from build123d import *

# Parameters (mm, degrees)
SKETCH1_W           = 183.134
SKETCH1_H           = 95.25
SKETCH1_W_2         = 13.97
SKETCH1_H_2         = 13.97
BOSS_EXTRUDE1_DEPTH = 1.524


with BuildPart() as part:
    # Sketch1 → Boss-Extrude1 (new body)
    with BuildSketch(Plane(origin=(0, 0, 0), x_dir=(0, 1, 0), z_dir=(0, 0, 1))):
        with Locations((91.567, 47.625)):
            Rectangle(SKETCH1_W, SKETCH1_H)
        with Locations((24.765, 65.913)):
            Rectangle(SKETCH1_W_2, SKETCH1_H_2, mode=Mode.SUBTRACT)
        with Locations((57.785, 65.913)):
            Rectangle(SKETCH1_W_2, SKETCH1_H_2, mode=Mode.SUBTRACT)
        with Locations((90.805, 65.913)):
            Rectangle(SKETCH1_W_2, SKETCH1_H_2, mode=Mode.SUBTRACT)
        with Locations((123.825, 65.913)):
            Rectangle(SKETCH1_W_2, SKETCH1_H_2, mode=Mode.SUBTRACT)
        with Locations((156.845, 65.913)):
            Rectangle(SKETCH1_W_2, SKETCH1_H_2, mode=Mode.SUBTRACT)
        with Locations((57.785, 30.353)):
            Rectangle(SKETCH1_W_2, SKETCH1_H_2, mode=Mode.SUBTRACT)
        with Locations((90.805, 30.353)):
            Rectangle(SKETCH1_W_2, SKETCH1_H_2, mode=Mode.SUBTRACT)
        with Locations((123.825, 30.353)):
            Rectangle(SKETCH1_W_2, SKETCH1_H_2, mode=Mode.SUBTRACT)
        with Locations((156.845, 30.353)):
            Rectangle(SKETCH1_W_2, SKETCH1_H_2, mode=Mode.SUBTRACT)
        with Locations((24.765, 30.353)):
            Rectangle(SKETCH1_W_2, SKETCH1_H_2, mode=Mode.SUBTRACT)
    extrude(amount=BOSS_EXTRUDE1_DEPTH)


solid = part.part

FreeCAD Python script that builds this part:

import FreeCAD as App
import Part
import Sketcher

V = App.Vector
Q = App.Units.Quantity


def add_polygon(sketch, points):
    """Adds a closed chain of lines whose ends are joined by coincident constraints."""
    first, n = sketch.GeometryCount, len(points)
    for a, b in zip(points, points[1:] + points[:1]):
        sketch.addGeometry(Part.LineSegment(App.Vector(*a, 0), App.Vector(*b, 0)), False)
    for i in range(n):
        sketch.addConstraint(Sketcher.Constraint("Coincident", first + i, 2, first + (i + 1) % n, 1))

doc = App.newDocument("Part")
params = doc.addObject("Spreadsheet::Sheet", "Params")
for row, (alias, value) in enumerate([
    ("sketch1_width", "3.75 in"),
    ("sketch1_width2", "0.55 in"),
    ("sketch1_height", "7.21 in"),
    ("pad1_length", "0.06 in"),
], start=1):
    params.set(f"A{row}", alias)
    params.set(f"B{row}", "=" + value)
    params.setAlias(f"B{row}", alias)

body = doc.addObject("PartDesign::Body", "Body")

sketch1 = body.newObject("Sketcher::SketchObject", "Sketch")
sketch1.AttachmentSupport = (doc.getObject("XY_Plane"), [""])
sketch1.MapMode = "FlatFace"
add_polygon(sketch1, [(-95, 0), (0, 0), (0, 183), (-95, 183)])
add_polygon(sketch1, [(-23, 32), (-23, 18), (-37, 18), (-37, 32)])
add_polygon(sketch1, [(-23, 65), (-23, 51), (-37, 51), (-37, 65)])
add_polygon(sketch1, [(-23, 98), (-23, 84), (-37, 84), (-37, 98)])
add_polygon(sketch1, [(-23, 131), (-23, 117), (-37, 117), (-37, 131)])
add_polygon(sketch1, [(-23, 164), (-23, 150), (-37, 150), (-37, 164)])
add_polygon(sketch1, [(-59, 32), (-59, 18), (-73, 18), (-73, 32)])
add_polygon(sketch1, [(-59, 65), (-59, 51), (-73, 51), (-73, 65)])
add_polygon(sketch1, [(-59, 98), (-59, 84), (-73, 84), (-73, 98)])
add_polygon(sketch1, [(-59, 131), (-59, 117), (-73, 117), (-73, 131)])
add_polygon(sketch1, [(-59, 164), (-59, 150), (-73, 150), (-73, 164)])
sketch1.addConstraint(Sketcher.Constraint("Horizontal", 0))
sketch1.addConstraint(Sketcher.Constraint("Vertical", 1))
sketch1.addConstraint(Sketcher.Constraint("Horizontal", 2))
sketch1.addConstraint(Sketcher.Constraint("Vertical", 3))
sketch1.addConstraint(Sketcher.Constraint("Vertical", 4))
sketch1.addConstraint(Sketcher.Constraint("Horizontal", 5))
sketch1.addConstraint(Sketcher.Constraint("Vertical", 6))
sketch1.addConstraint(Sketcher.Constraint("Horizontal", 7))
sketch1.addConstraint(Sketcher.Constraint("Vertical", 8))
sketch1.addConstraint(Sketcher.Constraint("Horizontal", 9))
sketch1.addConstraint(Sketcher.Constraint("Vertical", 10))
sketch1.addConstraint(Sketcher.Constraint("Horizontal", 11))
sketch1.addConstraint(Sketcher.Constraint("Vertical", 12))
sketch1.addConstraint(Sketcher.Constraint("Horizontal", 13))
sketch1.addConstraint(Sketcher.Constraint("Vertical", 14))
sketch1.addConstraint(Sketcher.Constraint("Horizontal", 15))
sketch1.addConstraint(Sketcher.Constraint("Vertical", 16))
sketch1.addConstraint(Sketcher.Constraint("Horizontal", 17))
sketch1.addConstraint(Sketcher.Constraint("Vertical", 18))
sketch1.addConstraint(Sketcher.Constraint("Horizontal", 19))
sketch1.addConstraint(Sketcher.Constraint("Vertical", 20))
sketch1.addConstraint(Sketcher.Constraint("Horizontal", 21))
sketch1.addConstraint(Sketcher.Constraint("Vertical", 22))
sketch1.addConstraint(Sketcher.Constraint("Horizontal", 23))
sketch1.addConstraint(Sketcher.Constraint("Vertical", 24))
sketch1.addConstraint(Sketcher.Constraint("Horizontal", 25))
sketch1.addConstraint(Sketcher.Constraint("Vertical", 26))
sketch1.addConstraint(Sketcher.Constraint("Horizontal", 27))
sketch1.addConstraint(Sketcher.Constraint("Vertical", 28))
sketch1.addConstraint(Sketcher.Constraint("Horizontal", 29))
sketch1.addConstraint(Sketcher.Constraint("Vertical", 30))
sketch1.addConstraint(Sketcher.Constraint("Horizontal", 31))
sketch1.addConstraint(Sketcher.Constraint("Vertical", 32))
sketch1.addConstraint(Sketcher.Constraint("Horizontal", 33))
sketch1.addConstraint(Sketcher.Constraint("Vertical", 34))
sketch1.addConstraint(Sketcher.Constraint("Horizontal", 35))
sketch1.addConstraint(Sketcher.Constraint("Vertical", 36))
sketch1.addConstraint(Sketcher.Constraint("Horizontal", 37))
sketch1.addConstraint(Sketcher.Constraint("Vertical", 38))
sketch1.addConstraint(Sketcher.Constraint("Horizontal", 39))
sketch1.addConstraint(Sketcher.Constraint("Vertical", 40))
sketch1.addConstraint(Sketcher.Constraint("Horizontal", 41))
sketch1.addConstraint(Sketcher.Constraint("Vertical", 42))
sketch1.addConstraint(Sketcher.Constraint("Horizontal", 43))
sketch1.addConstraint(Sketcher.Constraint("Coincident", 0, 2, -1, 1))
sketch1.addConstraint(Sketcher.Constraint("Horizontal", 5, 2, 24, 2))
sketch1.addConstraint(Sketcher.Constraint("Horizontal", 7, 2, 26, 2))
sketch1.addConstraint(Sketcher.Constraint("Horizontal", 9, 2, 28, 2))
sketch1.addConstraint(Sketcher.Constraint("Horizontal", 11, 2, 30, 2))
sketch1.addConstraint(Sketcher.Constraint("Horizontal", 13, 2, 32, 2))
sketch1.addConstraint(Sketcher.Constraint("Horizontal", 15, 2, 34, 2))
sketch1.addConstraint(Sketcher.Constraint("Horizontal", 17, 2, 36, 2))
sketch1.addConstraint(Sketcher.Constraint("Horizontal", 19, 2, 38, 2))
sketch1.addConstraint(Sketcher.Constraint("Horizontal", 21, 2, 40, 2))
sketch1.addConstraint(Sketcher.Constraint("Horizontal", 23, 2, 42, 2))
sketch1.addConstraint(Sketcher.Constraint("Vertical", 7, 2, 8, 2))
sketch1.addConstraint(Sketcher.Constraint("Vertical", 6, 2, 9, 2))
sketch1.addConstraint(Sketcher.Constraint("Vertical", 11, 2, 12, 2))
sketch1.addConstraint(Sketcher.Constraint("Vertical", 10, 2, 13, 2))
sketch1.addConstraint(Sketcher.Constraint("Vertical", 15, 2, 16, 2))
sketch1.addConstraint(Sketcher.Constraint("Vertical", 14, 2, 17, 2))
sketch1.addConstraint(Sketcher.Constraint("Vertical", 19, 2, 20, 2))
sketch1.addConstraint(Sketcher.Constraint("Vertical", 18, 2, 21, 2))
sketch1.addConstraint(Sketcher.Constraint("Vertical", 27, 2, 28, 2))
sketch1.addConstraint(Sketcher.Constraint("Vertical", 26, 2, 29, 2))
sketch1.addConstraint(Sketcher.Constraint("Vertical", 31, 2, 32, 2))
sketch1.addConstraint(Sketcher.Constraint("Vertical", 30, 2, 33, 2))
sketch1.addConstraint(Sketcher.Constraint("Vertical", 35, 2, 36, 2))
sketch1.addConstraint(Sketcher.Constraint("Vertical", 34, 2, 37, 2))
sketch1.addConstraint(Sketcher.Constraint("Vertical", 39, 2, 40, 2))
sketch1.addConstraint(Sketcher.Constraint("Vertical", 38, 2, 41, 2))
sketch1.addConstraint(Sketcher.Constraint("Equal", 23, 25))
sketch1.addConstraint(Sketcher.Constraint("Equal", 43, 4))
sketch1.addConstraint(Sketcher.Constraint("Equal", 6, 8))
sketch1.addConstraint(Sketcher.Constraint("Equal", 10, 12))
sketch1.addConstraint(Sketcher.Constraint("Equal", 14, 16))
sketch1.addConstraint(Sketcher.Constraint("Equal", 18, 20))
sketch1.addConstraint(Sketcher.Constraint("DistanceY", -1, 1, 8, 2, Q("2 in")))
sketch1.addConstraint(Sketcher.Constraint("DistanceX", 0, 1, 0, 2, Q("3.75 in")))
sketch1.addConstraint(Sketcher.Constraint("DistanceX", 5, 2, 5, 1, Q("0.55 in")))
sketch1.addConstraint(Sketcher.Constraint("DistanceY", 1, 1, 1, 2, Q("7.21 in")))
sketch1.addConstraint(Sketcher.Constraint("DistanceY", -1, 1, 4, 2, Q("0.7 in")))
sketch1.addConstraint(Sketcher.Constraint("DistanceY", -1, 1, 12, 2, Q("3.3 in")))
sketch1.addConstraint(Sketcher.Constraint("DistanceY", -1, 1, 16, 2, Q("4.6 in")))
sketch1.addConstraint(Sketcher.Constraint("DistanceY", -1, 1, 20, 2, Q("5.9 in")))
sketch1.addConstraint(Sketcher.Constraint("DistanceX", 24, 2, 4, 2, Q("1.4 in")))
sketch1.addConstraint(Sketcher.Constraint("DistanceX", 4, 2, -1, 1, Q("0.92 in")))
sketch1.setExpression("Constraints[122]", "Params.sketch1_width")
sketch1.setExpression("Constraints[123]", "Params.sketch1_width2")
sketch1.setExpression("Constraints[124]", "Params.sketch1_height")
pad1 = body.newObject("PartDesign::Pad", "Pad")
pad1.Profile = sketch1
pad1.setExpression("Length", "Params.pad1_length")

doc.recompute()
